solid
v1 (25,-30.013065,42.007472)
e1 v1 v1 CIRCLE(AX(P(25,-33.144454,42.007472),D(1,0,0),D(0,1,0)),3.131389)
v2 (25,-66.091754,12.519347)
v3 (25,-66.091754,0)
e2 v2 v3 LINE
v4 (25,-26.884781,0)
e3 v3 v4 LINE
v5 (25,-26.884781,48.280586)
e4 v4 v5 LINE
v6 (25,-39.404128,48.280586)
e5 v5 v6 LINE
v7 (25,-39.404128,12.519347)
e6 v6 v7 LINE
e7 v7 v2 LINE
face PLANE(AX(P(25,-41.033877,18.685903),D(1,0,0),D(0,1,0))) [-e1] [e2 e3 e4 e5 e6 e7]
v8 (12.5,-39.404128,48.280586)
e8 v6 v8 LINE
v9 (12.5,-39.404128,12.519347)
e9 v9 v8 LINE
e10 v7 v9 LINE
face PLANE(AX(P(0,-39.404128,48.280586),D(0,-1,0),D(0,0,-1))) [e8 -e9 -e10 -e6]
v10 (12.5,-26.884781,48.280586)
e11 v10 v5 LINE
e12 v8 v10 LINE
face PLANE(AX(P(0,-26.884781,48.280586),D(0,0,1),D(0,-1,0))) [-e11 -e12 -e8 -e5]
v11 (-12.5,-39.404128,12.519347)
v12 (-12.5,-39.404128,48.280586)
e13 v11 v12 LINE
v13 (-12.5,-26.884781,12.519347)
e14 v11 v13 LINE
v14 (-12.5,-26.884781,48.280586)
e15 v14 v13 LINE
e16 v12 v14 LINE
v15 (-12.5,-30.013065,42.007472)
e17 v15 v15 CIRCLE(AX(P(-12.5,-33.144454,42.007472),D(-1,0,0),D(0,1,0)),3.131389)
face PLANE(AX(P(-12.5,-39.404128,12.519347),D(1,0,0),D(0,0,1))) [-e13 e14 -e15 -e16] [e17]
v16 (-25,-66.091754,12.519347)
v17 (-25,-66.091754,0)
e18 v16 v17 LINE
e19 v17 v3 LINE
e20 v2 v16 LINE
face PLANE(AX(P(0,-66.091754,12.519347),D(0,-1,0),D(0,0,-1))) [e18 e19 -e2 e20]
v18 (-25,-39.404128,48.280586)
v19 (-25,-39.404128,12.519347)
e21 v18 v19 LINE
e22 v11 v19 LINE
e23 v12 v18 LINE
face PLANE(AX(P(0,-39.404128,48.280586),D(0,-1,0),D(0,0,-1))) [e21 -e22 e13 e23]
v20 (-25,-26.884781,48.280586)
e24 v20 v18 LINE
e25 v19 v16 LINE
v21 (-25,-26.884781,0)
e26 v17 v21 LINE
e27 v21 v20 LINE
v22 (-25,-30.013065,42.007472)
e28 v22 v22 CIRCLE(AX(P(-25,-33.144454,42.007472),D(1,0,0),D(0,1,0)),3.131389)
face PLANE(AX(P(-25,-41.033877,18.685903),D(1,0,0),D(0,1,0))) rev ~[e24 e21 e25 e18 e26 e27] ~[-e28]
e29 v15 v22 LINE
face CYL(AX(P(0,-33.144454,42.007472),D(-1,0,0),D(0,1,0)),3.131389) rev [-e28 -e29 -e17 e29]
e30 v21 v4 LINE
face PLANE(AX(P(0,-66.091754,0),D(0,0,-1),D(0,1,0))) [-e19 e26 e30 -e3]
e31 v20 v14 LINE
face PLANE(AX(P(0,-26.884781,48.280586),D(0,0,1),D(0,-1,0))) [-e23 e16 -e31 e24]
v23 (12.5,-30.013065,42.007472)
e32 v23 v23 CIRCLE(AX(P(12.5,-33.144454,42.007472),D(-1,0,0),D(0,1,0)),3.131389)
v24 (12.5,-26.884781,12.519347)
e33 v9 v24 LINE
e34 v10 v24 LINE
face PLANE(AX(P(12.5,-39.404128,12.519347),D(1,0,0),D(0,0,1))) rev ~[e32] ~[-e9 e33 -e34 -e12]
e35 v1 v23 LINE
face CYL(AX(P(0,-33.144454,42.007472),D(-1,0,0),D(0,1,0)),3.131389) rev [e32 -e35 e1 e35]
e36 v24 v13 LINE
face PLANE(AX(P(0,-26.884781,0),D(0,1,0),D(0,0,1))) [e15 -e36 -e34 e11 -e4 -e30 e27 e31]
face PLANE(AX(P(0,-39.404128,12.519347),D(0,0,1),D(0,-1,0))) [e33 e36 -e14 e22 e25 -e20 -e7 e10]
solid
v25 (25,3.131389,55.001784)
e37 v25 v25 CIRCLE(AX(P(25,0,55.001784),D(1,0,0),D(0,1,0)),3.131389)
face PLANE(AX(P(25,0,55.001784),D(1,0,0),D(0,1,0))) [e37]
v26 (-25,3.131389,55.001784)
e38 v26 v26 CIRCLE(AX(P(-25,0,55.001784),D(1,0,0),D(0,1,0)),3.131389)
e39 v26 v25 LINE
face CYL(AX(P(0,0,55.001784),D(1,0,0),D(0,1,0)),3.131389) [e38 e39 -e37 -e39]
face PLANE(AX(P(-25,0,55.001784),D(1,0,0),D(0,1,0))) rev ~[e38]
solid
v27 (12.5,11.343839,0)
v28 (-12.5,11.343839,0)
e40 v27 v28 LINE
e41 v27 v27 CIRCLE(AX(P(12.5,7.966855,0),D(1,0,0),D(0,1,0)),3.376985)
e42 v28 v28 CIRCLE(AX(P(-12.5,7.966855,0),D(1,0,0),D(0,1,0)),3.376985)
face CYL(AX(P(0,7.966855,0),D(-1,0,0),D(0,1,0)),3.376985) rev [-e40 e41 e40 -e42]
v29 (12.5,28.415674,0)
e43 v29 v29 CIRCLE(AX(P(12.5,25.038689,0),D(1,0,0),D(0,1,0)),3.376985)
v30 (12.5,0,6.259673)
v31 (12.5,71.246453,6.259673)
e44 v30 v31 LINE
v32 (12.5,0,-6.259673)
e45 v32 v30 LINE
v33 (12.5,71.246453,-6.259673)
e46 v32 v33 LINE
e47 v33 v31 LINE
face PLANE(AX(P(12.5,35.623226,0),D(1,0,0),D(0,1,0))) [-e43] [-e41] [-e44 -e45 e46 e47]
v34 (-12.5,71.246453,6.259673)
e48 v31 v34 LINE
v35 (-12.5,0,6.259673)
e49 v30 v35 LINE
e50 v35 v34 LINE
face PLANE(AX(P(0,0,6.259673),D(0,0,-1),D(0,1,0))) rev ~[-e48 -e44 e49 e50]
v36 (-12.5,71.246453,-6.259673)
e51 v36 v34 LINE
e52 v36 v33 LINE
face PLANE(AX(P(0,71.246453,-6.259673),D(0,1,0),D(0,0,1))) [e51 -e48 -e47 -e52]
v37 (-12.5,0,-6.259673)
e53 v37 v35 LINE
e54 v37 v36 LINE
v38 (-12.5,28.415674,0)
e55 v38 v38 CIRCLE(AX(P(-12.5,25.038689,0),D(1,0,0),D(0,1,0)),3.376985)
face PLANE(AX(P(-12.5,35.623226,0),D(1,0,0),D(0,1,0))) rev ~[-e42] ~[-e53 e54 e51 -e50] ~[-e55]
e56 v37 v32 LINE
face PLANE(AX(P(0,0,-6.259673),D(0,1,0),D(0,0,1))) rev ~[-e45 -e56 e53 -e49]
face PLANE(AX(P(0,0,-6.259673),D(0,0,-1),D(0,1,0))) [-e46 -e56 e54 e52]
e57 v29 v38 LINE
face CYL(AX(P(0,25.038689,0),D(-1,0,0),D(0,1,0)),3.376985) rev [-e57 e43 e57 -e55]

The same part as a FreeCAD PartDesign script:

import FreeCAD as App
import Part
import Sketcher
from FreeCAD import Vector


def add_polygon(sketch, points):
    """Adds a closed chain of lines whose ends are joined by coincident constraints."""
    first, n = sketch.GeometryCount, len(points)
    for a, b in zip(points, points[1:] + points[:1]):
        sketch.addGeometry(Part.LineSegment(App.Vector(*a, 0), App.Vector(*b, 0)), False)
    for i in range(n):
        sketch.addConstraint(Sketcher.Constraint("Coincident", first + i, 2, first + (i + 1) % n, 1))

doc = App.newDocument("Part")
body = doc.addObject("PartDesign::Body", "Body")

sketch1 = doc.addObject("Sketcher::SketchObject", "Sketch")
body.addObject(sketch1)
sketch1.AttachmentSupport = (doc.YZ_Plane, [""])
sketch1.MapMode = "FlatFace"
add_polygon(sketch1, [(0, 6.259673), (0, -6.259673), (71.246453, -6.259673), (71.246453, 6.259673)])
sketch1.addGeometry(Part.Circle(Vector(7.966855, 0, 0), Vector(0, 0, 1), 3.376985), False)
sketch1.addGeometry(Part.Circle(Vector(25.038689, 0, 0), Vector(0, 0, 1), 3.376985), False)
sketch1.addConstraint(Sketcher.Constraint("Vertical", 0))
sketch1.addConstraint(Sketcher.Constraint("Horizontal", 1))
sketch1.addConstraint(Sketcher.Constraint("Vertical", 2))
sketch1.addConstraint(Sketcher.Constraint("Horizontal", 3))
sketch1.addConstraint(Sketcher.Constraint("Equal", 4, 5))
sketch1.addConstraint(Sketcher.Constraint("Symmetric", 0, 2, 3, 2, -1, 1))
sketch1.addConstraint(Sketcher.Constraint("PointOnObject", 4, 3, -1))
sketch1.addConstraint(Sketcher.Constraint("PointOnObject", 5, 3, -1))
sketch1.addConstraint(Sketcher.Constraint("Diameter", 4, 6.75397))
sketch1.addConstraint(Sketcher.Constraint("DistanceX", 4, 3, 1, 2, 63.279598))
sketch1.addConstraint(Sketcher.Constraint("DistanceX", 1, 1, 1, 2, 71.246453))
sketch1.addConstraint(Sketcher.Constraint("DistanceY", 0, 2, 0, 1, 12.519347))
sketch1.addConstraint(Sketcher.Constraint("DistanceX", -1, 1, 5, 3, 25.038689))
pad1 = doc.addObject("PartDesign::Pad", "Pad")
body.addObject(pad1)
pad1.Profile = sketch1
pad1.Length = 25
pad1.Midplane = True
body2 = doc.addObject("PartDesign::Body", "Body001")

sketch2 = doc.addObject("Sketcher::SketchObject", "Sketch001")
body2.addObject(sketch2)
sketch2.AttachmentSupport = (doc.getObject("YZ_Plane001"), [""])
sketch2.MapMode = "FlatFace"
add_polygon(sketch2, [(-66.091754, 12.519347), (-66.091754, 0), (-26.884781, 0), (-26.884781, 48.280586), (-39.404128, 48.280586), (-39.404128, 12.519347)])
sketch2.addGeometry(Part.Circle(Vector(-33.144454, 42.007472, 0), Vector(0, 0, 1), 3.131389), False)
sketch2.addConstraint(Sketcher.Constraint("Vertical", 0))
sketch2.addConstraint(Sketcher.Constraint("Horizontal", 1))
sketch2.addConstraint(Sketcher.Constraint("Vertical", 2))
sketch2.addConstraint(Sketcher.Constraint("Horizontal", 3))
sketch2.addConstraint(Sketcher.Constraint("Vertical", 4))
sketch2.addConstraint(Sketcher.Constraint("Horizontal", 5))
sketch2.addConstraint(Sketcher.Constraint("PointOnObject", 0, 2, -1))
sketch2.addConstraint(Sketcher.Constraint("Equal", 3, 0))
sketch2.addConstraint(Sketcher.Constraint("Diameter", 6, 6.262778))
sketch2.addConstraint(Sketcher.Constraint("DistanceY", 4, 2, 4, 1, 35.761239))
sketch2.addConstraint(Sketcher.Constraint("DistanceX", 0, 2, 6, 3, 32.947299))
sketch2.addConstraint(Sketcher.Constraint("DistanceX", 1, 1, 1, 2, 39.206972))
sketch2.addConstraint(Sketcher.Constraint("DistanceX", 3, 2, 3, 1, 12.519347))
sketch2.addConstraint(Sketcher.Constraint("DistanceX", 1, 2, -1, 1, 26.884781))
sketch2.addConstraint(Sketcher.Constraint("DistanceY", -1, 1, 6, 3, 42.007472))
pad2 = doc.addObject("PartDesign::Pad", "Pad001")
body2.addObject(pad2)
pad2.Profile = sketch2
pad2.Length = 50
pad2.Midplane = True

sketch3 = doc.addObject("Sketcher::SketchObject", "Sketch002")
body2.addObject(sketch3)
sketch3.AttachmentSupport = (doc.getObject("XZ_Plane001"), [""])
sketch3.MapMode = "FlatFace"
sketch3.AttachmentOffset = App.Placement(Vector(0, 0, 39.404128), App.Rotation())
add_polygon(sketch3, [(-12.5, 48.280586), (-12.5, 12.519347), (12.5, 12.519347), (12.5, 48.280586)])
sketch3.addConstraint(Sketcher.Constraint("Vertical", 0))
sketch3.addConstraint(Sketcher.Constraint("Horizontal", 1))
sketch3.addConstraint(Sketcher.Constraint("Vertical", 2))
sketch3.addConstraint(Sketcher.Constraint("Horizontal", 3))
sketch3.addConstraint(Sketcher.Constraint("DistanceX", 1, 1, 1, 2, 25.0))
sketch3.addConstraint(Sketcher.Constraint("DistanceX", 0, 2, -1, 1, 12.5))
sketch3.addConstraint(Sketcher.Constraint("DistanceY", 0, 2, 0, 1, 35.761239))
sketch3.addConstraint(Sketcher.Constraint("DistanceY", -1, 1, 0, 2, 12.519347))
pocket1 = doc.addObject("PartDesign::Pocket", "Pocket")
body2.addObject(pocket1)
pocket1.Profile = sketch3
pocket1.Type = "ThroughAll"
body3 = doc.addObject("PartDesign::Body", "Body002")

sketch4 = doc.addObject("Sketcher::SketchObject", "Sketch003")
body3.addObject(sketch4)
sketch4.AttachmentSupport = (doc.getObject("YZ_Plane002"), [""])
sketch4.MapMode = "FlatFace"
sketch4.addGeometry(Part.Circle(Vector(0, 55.001784, 0), Vector(0, 0, 1), 3.131389), False)
sketch4.addConstraint(Sketcher.Constraint("PointOnObject", 0, 3, -2))
sketch4.addConstraint(Sketcher.Constraint("Diameter", 0, 6.262778))
sketch4.addConstraint(Sketcher.Constraint("DistanceY", -1, 1, 0, 3, 55.001784))
pad3 = doc.addObject("PartDesign::Pad", "Pad002")
body3.addObject(pad3)
pad3.Profile = sketch4
pad3.Length = 50
pad3.Midplane = True

doc.recompute()
